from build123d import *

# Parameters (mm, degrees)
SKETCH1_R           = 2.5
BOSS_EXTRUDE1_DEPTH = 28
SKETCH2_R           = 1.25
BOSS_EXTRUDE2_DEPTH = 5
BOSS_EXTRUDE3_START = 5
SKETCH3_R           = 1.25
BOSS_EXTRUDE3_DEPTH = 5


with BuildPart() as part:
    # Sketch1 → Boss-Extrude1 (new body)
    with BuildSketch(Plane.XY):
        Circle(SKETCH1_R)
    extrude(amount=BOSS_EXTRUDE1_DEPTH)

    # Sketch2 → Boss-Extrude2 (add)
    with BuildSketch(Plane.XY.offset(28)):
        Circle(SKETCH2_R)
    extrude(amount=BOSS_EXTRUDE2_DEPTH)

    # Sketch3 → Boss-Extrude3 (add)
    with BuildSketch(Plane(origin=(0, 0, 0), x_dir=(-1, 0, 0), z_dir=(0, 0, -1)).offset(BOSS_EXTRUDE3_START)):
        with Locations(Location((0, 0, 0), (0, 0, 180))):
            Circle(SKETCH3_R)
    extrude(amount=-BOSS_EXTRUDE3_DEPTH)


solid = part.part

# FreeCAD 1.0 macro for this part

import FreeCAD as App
import Part
import Sketcher
from FreeCAD import Vector

doc = App.newDocument("Part")
body = doc.addObject("PartDesign::Body", "Body")

# Sketch on XY plane
sketch1 = doc.addObject("Sketcher::SketchObject", "Sketch")
body.addObject(sketch1)
sketch1.AttachmentSupport = (doc.XY_Plane, [""])
sketch1.MapMode = "FlatFace"
sketch1.addGeometry(Part.Circle(Vector(0, 0, 0), Vector(0, 0, 1), 2.5), False)
sketch1.addConstraint(Sketcher.Constraint("Coincident", 0, 3, -1, 1))
sketch1.addConstraint(Sketcher.Constraint("Diameter", 0, 5.0))
pad1 = doc.addObject("PartDesign::Pad", "Pad")
body.addObject(pad1)
pad1.Profile = sketch1
pad1.Length = 28

# Sketch on XY plane
sketch2 = doc.addObject("Sketcher::SketchObject", "Sketch001")
body.addObject(sketch2)
sketch2.AttachmentSupport = (doc.XY_Plane, [""])
sketch2.MapMode = "FlatFace"
sketch2.AttachmentOffset = App.Placement(Vector(0, 0, 28), App.Rotation())
sketch2.addGeometry(Part.Circle(Vector(0, 0, 0), Vector(0, 0, 1), 1.25), False)
sketch2.addConstraint(Sketcher.Constraint("Coincident", 0, 3, -1, 1))
sketch2.addConstraint(Sketcher.Constraint("Diameter", 0, 2.5))
pad2 = doc.addObject("PartDesign::Pad", "Pad001")
body.addObject(pad2)
pad2.Profile = sketch2
pad2.Length = 5

# Sketch on XY plane
sketch3 = doc.addObject("Sketcher::SketchObject", "Sketch002")
body.addObject(sketch3)
sketch3.AttachmentSupport = (doc.XY_Plane, [""])
sketch3.MapMode = "FlatFace"
sketch3.AttachmentOffset = App.Placement(Vector(0, 0, -5), App.Rotation())
sketch3.addGeometry(Part.Circle(Vector(0, 0, 0), Vector(0, 0, 1), 1.25), False)
sketch3.addConstraint(Sketcher.Constraint("Coincident", 0, 3, -1, 1))
sketch3.addConstraint(Sketcher.Constraint("Diameter", 0, 2.5))
pad3 = doc.addObject("PartDesign::Pad", "Pad002")
body.addObject(pad3)
pad3.Profile = sketch3
pad3.Length = 5

doc.recompute()
